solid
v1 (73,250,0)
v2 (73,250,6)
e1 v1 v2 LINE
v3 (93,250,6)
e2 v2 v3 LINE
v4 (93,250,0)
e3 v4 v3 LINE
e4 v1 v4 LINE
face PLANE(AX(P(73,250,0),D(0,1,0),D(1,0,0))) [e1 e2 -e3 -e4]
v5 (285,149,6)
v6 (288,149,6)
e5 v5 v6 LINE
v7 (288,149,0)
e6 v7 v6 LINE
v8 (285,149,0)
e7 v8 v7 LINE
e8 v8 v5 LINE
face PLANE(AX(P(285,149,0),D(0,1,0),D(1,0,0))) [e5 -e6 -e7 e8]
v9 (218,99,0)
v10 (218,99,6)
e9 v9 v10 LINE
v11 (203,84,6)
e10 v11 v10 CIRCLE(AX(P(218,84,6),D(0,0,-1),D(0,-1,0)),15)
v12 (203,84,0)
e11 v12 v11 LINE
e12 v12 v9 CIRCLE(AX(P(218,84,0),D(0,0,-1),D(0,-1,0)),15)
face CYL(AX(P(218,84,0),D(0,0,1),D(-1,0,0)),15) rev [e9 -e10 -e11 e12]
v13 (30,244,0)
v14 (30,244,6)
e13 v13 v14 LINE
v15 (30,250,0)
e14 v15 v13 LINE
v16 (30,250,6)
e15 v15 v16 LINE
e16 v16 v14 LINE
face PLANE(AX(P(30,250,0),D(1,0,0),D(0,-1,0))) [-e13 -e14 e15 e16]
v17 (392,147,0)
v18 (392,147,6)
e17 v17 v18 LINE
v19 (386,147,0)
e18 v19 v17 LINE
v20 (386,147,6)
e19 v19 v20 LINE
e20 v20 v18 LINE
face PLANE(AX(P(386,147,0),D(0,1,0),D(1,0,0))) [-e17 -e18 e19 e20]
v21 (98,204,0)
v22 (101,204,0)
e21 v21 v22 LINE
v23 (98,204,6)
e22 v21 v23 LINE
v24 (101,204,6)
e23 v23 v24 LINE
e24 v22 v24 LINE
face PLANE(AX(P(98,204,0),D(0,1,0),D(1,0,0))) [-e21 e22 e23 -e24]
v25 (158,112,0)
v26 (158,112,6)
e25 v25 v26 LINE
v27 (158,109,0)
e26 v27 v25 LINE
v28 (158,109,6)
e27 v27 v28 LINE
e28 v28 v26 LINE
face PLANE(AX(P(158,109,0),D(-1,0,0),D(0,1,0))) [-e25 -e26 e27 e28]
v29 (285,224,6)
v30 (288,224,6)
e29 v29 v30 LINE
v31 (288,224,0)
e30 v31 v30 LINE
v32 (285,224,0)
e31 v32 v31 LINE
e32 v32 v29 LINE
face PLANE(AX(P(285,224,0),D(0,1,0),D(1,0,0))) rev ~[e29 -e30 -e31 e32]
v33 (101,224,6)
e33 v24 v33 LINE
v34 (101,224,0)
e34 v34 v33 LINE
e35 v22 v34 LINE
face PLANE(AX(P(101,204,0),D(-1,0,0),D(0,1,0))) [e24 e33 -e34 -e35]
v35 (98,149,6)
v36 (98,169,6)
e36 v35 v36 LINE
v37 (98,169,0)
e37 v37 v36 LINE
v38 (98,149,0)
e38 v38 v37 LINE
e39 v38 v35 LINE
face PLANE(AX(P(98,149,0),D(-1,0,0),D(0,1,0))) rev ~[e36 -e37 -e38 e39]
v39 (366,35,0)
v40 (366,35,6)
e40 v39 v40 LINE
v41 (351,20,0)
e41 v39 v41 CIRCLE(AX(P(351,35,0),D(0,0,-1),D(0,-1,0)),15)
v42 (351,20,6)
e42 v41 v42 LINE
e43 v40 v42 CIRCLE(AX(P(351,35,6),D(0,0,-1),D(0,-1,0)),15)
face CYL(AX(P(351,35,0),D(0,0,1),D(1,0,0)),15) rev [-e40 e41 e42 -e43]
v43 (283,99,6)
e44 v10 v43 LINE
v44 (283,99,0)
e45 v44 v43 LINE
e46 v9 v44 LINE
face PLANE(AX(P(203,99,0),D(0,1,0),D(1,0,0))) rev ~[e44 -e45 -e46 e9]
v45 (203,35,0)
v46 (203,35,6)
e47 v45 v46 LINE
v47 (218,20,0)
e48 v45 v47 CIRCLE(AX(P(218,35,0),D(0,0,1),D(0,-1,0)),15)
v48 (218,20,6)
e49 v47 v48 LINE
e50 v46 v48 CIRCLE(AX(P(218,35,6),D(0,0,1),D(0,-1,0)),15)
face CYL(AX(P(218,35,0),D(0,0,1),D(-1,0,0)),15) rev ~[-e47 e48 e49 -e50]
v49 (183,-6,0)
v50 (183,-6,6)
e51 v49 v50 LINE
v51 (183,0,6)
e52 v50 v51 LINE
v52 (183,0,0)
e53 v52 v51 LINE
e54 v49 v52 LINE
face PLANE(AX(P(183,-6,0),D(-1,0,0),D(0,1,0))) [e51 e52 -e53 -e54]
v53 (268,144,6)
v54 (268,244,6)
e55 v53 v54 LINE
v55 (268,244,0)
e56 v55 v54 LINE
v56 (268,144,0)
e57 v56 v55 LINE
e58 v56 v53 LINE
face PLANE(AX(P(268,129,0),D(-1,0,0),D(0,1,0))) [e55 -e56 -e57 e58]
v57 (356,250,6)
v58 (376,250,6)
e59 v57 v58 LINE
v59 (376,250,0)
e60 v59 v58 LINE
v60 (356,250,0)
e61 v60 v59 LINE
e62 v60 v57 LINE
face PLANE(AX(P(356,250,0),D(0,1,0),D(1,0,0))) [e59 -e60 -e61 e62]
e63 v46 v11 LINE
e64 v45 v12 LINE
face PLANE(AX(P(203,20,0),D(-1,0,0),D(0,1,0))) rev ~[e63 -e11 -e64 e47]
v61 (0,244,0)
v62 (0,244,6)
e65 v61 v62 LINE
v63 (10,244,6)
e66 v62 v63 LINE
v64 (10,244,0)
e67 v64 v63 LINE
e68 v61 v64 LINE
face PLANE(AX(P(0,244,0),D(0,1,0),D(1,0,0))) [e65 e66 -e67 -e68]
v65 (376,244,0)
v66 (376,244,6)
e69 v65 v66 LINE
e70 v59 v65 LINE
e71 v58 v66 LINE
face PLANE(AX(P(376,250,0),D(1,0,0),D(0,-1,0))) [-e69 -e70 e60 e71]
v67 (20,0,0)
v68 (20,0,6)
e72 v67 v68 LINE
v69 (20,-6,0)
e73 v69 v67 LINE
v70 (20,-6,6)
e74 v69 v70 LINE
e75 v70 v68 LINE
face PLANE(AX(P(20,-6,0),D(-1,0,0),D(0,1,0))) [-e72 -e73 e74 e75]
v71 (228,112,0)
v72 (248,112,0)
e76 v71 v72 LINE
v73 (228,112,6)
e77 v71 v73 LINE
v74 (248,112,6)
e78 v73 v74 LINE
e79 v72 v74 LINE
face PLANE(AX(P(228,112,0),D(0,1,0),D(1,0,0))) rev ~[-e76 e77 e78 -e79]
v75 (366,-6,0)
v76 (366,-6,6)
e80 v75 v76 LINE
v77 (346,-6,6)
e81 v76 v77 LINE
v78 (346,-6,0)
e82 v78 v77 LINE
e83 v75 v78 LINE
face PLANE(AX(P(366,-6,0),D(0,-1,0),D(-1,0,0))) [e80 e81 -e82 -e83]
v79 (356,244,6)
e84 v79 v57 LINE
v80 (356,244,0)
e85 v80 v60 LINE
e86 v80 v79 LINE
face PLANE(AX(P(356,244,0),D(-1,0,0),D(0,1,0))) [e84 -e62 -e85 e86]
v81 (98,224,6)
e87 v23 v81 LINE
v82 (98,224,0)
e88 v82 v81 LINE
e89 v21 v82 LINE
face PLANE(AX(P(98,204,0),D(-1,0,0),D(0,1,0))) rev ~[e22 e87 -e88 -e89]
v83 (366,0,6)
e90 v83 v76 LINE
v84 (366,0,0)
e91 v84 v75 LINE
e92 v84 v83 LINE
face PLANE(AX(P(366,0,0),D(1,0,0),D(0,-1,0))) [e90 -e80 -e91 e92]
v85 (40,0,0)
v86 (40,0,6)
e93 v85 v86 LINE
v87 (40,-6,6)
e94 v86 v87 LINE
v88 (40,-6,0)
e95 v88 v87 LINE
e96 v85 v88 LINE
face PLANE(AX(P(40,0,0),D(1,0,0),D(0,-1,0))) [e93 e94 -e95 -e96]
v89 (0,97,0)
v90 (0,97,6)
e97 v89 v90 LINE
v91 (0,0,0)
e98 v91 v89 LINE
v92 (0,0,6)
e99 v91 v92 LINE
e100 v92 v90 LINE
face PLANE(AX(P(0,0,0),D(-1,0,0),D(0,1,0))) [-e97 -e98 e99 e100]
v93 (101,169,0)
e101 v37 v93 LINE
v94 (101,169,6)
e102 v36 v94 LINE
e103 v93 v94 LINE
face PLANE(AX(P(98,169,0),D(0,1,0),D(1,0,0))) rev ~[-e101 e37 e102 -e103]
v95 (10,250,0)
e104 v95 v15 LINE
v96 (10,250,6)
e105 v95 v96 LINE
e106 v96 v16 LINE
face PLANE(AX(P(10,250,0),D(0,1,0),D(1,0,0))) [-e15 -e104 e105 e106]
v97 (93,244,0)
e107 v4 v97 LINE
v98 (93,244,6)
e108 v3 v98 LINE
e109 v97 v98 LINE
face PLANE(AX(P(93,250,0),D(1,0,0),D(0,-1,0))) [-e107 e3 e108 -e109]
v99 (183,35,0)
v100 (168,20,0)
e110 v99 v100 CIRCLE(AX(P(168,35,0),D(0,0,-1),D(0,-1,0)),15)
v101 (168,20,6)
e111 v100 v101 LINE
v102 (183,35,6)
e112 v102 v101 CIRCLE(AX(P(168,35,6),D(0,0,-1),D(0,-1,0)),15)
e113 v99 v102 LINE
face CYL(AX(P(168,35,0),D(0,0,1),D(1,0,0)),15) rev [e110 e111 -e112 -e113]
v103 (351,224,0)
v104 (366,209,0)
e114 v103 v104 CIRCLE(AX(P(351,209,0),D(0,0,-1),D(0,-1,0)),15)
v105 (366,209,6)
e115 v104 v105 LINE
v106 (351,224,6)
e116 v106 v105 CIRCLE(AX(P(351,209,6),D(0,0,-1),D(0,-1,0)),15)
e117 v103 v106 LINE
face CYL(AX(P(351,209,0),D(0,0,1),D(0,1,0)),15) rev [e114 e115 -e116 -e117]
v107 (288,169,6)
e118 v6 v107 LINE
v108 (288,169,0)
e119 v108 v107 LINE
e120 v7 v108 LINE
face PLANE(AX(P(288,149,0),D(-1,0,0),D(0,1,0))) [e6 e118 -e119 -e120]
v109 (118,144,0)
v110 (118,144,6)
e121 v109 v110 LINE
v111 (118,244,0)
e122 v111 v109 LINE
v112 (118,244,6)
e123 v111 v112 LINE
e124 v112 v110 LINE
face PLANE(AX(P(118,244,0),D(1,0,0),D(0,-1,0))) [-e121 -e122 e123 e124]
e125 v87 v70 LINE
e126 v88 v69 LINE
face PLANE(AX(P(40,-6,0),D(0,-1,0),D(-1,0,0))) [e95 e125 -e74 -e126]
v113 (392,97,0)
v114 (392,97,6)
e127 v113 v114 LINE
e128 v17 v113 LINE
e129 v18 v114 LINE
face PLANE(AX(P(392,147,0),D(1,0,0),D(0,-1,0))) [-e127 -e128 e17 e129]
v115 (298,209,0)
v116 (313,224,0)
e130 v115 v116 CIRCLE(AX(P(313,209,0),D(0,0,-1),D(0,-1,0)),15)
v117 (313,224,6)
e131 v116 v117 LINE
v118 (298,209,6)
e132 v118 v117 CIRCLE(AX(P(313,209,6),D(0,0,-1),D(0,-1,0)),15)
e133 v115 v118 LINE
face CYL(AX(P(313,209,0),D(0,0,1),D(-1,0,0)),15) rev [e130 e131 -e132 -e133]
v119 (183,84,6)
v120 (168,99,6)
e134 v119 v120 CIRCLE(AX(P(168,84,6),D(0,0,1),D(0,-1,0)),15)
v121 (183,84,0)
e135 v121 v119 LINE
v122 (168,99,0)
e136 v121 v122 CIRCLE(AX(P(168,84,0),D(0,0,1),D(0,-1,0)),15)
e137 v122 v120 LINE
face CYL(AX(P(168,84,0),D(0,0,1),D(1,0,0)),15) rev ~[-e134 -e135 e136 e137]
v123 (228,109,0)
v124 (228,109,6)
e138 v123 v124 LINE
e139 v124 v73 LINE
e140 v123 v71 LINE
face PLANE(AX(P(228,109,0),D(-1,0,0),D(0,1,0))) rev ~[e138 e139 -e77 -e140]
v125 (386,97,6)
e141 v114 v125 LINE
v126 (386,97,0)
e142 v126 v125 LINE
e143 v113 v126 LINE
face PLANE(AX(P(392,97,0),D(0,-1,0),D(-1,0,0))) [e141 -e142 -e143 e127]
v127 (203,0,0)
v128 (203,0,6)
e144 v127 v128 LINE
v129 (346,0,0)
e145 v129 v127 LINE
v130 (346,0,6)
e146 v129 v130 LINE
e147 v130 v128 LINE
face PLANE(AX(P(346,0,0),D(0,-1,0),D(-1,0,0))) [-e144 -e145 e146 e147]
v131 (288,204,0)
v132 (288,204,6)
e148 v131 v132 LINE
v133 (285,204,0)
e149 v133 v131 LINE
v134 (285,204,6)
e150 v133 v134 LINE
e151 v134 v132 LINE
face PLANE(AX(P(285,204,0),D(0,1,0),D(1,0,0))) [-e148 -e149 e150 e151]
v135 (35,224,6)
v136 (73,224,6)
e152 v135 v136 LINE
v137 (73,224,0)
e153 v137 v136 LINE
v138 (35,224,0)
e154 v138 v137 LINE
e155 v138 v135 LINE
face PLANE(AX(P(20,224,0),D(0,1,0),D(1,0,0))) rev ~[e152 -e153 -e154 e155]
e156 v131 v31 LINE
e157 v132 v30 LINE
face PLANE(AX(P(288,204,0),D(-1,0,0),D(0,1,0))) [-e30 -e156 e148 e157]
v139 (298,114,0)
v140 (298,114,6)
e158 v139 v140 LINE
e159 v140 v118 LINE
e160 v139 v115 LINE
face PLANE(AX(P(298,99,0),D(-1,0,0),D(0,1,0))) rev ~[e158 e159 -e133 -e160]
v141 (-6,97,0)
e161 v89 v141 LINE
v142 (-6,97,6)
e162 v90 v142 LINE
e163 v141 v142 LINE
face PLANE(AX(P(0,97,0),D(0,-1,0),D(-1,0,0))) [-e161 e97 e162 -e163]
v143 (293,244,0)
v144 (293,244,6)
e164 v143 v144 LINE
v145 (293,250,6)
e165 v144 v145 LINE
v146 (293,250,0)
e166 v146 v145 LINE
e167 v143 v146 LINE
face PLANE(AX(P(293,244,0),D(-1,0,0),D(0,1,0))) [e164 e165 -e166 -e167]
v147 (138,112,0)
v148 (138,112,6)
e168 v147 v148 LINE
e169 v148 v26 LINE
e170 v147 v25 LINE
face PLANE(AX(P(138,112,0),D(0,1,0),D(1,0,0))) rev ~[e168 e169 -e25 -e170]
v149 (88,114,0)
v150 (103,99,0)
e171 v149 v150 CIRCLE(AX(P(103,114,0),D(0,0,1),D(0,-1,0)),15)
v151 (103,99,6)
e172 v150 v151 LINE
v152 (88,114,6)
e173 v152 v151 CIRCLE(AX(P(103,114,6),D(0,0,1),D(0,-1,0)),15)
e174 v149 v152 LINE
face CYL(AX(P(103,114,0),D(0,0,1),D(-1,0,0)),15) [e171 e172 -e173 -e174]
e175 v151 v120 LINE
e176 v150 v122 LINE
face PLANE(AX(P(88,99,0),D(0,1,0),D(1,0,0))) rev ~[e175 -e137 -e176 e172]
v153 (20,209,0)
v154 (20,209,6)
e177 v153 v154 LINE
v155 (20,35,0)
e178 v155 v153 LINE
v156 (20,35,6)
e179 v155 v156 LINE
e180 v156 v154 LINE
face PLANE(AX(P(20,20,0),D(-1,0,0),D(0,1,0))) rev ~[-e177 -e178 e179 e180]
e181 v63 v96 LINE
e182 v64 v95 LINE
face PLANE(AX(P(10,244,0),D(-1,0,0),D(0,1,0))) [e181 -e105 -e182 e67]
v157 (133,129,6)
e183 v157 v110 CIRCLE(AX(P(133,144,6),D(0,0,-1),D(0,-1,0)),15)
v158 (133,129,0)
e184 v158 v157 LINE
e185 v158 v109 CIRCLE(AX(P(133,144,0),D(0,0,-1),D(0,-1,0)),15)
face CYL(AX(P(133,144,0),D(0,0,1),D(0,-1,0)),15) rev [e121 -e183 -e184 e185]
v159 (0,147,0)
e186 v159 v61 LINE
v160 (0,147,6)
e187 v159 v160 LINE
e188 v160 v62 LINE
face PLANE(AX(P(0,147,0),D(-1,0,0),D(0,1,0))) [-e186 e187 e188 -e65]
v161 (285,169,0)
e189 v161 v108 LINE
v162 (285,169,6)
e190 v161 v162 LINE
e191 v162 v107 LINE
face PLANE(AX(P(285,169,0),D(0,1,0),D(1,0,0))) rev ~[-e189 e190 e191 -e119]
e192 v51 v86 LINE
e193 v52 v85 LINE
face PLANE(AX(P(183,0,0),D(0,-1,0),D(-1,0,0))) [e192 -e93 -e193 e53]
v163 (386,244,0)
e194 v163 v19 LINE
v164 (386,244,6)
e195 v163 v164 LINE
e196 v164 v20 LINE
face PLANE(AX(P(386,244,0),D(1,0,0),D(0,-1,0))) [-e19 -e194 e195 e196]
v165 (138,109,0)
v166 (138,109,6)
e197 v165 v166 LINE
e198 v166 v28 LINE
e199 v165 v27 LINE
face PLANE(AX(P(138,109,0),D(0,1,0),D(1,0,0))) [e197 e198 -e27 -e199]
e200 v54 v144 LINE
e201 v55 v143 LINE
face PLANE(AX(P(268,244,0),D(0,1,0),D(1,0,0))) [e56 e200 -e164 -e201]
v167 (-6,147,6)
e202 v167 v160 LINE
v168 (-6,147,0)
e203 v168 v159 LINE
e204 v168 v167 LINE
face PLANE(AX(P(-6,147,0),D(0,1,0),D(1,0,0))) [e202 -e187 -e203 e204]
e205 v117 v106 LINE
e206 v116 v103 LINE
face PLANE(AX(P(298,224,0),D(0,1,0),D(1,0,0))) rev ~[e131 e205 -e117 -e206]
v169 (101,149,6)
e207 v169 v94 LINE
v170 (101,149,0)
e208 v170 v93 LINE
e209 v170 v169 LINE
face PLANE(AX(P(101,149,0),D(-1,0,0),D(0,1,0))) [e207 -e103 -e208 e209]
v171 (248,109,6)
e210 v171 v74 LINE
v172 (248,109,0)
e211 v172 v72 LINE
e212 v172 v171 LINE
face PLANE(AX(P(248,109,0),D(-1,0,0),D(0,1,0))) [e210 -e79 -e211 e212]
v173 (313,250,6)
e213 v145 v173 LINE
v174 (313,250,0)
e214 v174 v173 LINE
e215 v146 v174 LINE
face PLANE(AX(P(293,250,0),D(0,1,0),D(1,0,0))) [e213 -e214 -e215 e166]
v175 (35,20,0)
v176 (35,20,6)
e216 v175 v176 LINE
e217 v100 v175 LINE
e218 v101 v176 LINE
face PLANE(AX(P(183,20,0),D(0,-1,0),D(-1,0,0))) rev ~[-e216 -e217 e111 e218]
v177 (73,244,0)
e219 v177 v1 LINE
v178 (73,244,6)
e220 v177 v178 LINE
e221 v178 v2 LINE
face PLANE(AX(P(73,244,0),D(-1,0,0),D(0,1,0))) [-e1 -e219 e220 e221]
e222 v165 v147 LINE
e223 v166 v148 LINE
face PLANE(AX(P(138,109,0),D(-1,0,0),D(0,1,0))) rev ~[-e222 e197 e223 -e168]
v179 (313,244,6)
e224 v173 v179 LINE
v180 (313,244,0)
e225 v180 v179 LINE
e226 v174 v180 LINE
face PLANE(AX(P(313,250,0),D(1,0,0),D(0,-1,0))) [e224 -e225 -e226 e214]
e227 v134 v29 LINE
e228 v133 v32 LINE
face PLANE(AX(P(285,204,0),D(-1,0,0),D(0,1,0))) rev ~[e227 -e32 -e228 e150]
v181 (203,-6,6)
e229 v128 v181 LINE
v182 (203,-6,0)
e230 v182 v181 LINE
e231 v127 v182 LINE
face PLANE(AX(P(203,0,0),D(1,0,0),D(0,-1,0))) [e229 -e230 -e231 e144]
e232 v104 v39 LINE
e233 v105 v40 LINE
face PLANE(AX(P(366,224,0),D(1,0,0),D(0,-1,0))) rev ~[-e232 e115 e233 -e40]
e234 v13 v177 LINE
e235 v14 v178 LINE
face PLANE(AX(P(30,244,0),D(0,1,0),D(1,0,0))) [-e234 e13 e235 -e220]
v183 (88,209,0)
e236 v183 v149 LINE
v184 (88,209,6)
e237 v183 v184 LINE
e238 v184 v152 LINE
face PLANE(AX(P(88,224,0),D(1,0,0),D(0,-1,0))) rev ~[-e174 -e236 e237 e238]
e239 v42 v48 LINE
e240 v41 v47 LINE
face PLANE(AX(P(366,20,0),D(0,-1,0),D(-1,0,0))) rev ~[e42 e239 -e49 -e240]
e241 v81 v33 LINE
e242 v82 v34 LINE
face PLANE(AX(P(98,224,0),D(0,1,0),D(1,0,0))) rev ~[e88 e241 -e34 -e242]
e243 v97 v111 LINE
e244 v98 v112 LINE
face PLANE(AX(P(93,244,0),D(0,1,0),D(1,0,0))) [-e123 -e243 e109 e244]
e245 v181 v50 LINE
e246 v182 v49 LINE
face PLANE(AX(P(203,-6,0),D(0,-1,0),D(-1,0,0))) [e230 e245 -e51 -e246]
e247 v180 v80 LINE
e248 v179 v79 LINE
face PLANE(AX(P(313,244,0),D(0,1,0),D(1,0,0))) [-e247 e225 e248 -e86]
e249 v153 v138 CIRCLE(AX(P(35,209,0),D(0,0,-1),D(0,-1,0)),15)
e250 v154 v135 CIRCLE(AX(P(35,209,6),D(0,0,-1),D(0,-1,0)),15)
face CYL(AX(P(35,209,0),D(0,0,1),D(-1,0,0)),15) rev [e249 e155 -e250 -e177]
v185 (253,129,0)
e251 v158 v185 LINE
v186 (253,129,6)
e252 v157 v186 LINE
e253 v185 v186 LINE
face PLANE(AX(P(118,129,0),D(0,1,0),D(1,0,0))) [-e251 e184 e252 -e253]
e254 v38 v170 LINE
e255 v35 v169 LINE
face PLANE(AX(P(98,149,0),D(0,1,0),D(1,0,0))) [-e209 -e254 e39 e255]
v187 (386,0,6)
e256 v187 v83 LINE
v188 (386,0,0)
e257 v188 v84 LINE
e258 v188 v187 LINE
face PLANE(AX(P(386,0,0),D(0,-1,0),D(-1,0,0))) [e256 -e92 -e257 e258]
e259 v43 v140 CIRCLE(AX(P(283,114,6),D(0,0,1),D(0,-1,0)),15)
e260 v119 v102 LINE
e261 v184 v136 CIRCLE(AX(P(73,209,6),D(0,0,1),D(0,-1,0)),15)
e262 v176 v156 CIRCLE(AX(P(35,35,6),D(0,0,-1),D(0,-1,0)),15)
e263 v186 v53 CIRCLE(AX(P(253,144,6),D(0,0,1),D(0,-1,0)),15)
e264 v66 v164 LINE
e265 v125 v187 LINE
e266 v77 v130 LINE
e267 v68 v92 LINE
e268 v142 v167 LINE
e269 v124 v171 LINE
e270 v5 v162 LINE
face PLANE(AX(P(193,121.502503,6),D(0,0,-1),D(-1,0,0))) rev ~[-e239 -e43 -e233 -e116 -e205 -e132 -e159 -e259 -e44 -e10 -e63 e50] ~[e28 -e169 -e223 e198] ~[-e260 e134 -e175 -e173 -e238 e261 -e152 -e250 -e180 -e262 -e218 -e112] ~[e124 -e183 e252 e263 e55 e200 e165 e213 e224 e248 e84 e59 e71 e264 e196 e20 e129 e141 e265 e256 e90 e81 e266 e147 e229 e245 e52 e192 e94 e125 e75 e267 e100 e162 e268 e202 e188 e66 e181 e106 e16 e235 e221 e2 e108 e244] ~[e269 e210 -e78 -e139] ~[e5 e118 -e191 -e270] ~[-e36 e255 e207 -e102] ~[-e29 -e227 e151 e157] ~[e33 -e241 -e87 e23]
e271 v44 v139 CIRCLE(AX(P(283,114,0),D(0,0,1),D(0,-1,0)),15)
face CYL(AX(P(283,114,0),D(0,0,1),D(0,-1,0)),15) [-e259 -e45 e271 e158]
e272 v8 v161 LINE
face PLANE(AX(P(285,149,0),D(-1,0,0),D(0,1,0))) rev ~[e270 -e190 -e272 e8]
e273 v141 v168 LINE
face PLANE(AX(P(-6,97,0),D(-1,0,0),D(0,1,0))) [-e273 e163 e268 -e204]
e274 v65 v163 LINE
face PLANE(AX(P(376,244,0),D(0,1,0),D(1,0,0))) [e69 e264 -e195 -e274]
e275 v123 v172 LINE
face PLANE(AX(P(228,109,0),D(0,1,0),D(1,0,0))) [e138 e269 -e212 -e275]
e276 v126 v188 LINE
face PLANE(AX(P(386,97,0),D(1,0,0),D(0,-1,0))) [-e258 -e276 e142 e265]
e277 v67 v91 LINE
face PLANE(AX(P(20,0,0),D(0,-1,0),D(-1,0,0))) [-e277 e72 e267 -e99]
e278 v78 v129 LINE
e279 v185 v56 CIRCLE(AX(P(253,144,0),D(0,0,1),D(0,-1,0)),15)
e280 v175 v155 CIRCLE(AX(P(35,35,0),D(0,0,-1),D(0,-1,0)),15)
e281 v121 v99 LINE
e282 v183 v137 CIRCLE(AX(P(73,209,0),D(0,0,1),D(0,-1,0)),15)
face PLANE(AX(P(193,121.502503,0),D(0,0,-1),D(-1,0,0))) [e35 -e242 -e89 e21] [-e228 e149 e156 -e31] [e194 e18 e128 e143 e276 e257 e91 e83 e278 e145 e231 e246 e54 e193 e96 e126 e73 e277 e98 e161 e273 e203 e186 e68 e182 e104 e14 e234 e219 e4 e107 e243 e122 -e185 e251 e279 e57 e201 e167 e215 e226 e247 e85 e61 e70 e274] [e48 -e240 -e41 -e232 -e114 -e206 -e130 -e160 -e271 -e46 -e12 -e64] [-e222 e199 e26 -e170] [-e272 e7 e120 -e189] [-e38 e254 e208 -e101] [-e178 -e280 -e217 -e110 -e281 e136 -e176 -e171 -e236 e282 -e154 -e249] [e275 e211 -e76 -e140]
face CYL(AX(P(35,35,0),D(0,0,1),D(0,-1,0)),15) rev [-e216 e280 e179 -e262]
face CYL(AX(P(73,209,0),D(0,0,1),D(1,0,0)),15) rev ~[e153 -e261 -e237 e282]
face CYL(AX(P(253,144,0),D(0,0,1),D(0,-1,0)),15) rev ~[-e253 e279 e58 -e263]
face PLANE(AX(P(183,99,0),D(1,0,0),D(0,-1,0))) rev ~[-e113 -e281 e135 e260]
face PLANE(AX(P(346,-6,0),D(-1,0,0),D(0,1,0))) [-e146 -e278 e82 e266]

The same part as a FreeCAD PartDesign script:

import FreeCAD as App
import Part
import Sketcher

V = App.Vector


def edges_at(feature, points):
    """Names of the edges that pass closest to the given points."""
    edges = feature.Shape.Edges
    near = lambda p: min(range(len(edges)), key=lambda i: edges[i].distToShape(Part.Vertex(*p))[0])
    return sorted({f"Edge{near(p) + 1}" for p in points})

doc = App.newDocument("Part")
body = doc.addObject("PartDesign::Body", "Body")

sketch1 = doc.addObject("Sketcher::SketchObject", "Sketch")
body.addObject(sketch1)
sketch1.AttachmentSupport = (doc.XY_Plane, [""])
sketch1.MapMode = "FlatFace"
sketch1.addGeometry(Part.LineSegment(V(118, 129, 0), V(118, 244, 0)), False)
sketch1.addGeometry(Part.LineSegment(V(118, 244, 0), V(93, 244, 0)), False)
sketch1.addGeometry(Part.LineSegment(V(93, 244, 0), V(93, 250, 0)), False)
sketch1.addGeometry(Part.LineSegment(V(93, 250, 0), V(73, 250, 0)), False)
sketch1.addGeometry(Part.LineSegment(V(73, 250, 0), V(73, 244, 0)), False)
sketch1.addGeometry(Part.LineSegment(V(73, 244, 0), V(30, 244, 0)), False)
sketch1.addGeometry(Part.LineSegment(V(30, 244, 0), V(30, 250, 0)), False)
sketch1.addGeometry(Part.LineSegment(V(30, 250, 0), V(10, 250, 0)), False)
sketch1.addGeometry(Part.LineSegment(V(10, 250, 0), V(10, 244, 0)), False)
sketch1.addGeometry(Part.LineSegment(V(10, 244, 0), V(0, 244, 0)), False)
sketch1.addGeometry(Part.LineSegment(V(0, 244, 0), V(0, 147, 0)), False)
sketch1.addGeometry(Part.LineSegment(V(0, 147, 0), V(-6, 147, 0)), False)
sketch1.addGeometry(Part.LineSegment(V(-6, 147, 0), V(-6, 97, 0)), False)
sketch1.addGeometry(Part.LineSegment(V(-6, 97, 0), V(0, 97, 0)), False)
sketch1.addGeometry(Part.LineSegment(V(0, 97, 0), V(0, 0, 0)), False)
sketch1.addGeometry(Part.LineSegment(V(0, 0, 0), V(20, 0, 0)), False)
sketch1.addGeometry(Part.LineSegment(V(20, 0, 0), V(20, -6, 0)), False)
sketch1.addGeometry(Part.LineSegment(V(20, -6, 0), V(40, -6, 0)), False)
sketch1.addGeometry(Part.LineSegment(V(40, -6, 0), V(40, 0, 0)), False)
sketch1.addGeometry(Part.LineSegment(V(40, 0, 0), V(183, 0, 0)), False)
sketch1.addGeometry(Part.LineSegment(V(183, 0, 0), V(183, -6, 0)), False)
sketch1.addGeometry(Part.LineSegment(V(183, -6, 0), V(203, -6, 0)), False)
sketch1.addGeometry(Part.LineSegment(V(203, -6, 0), V(203, 0, 0)), False)
sketch1.addGeometry(Part.LineSegment(V(203, 0, 0), V(346, 0, 0)), False)
sketch1.addGeometry(Part.LineSegment(V(346, 0, 0), V(346, -6, 0)), False)
sketch1.addGeometry(Part.LineSegment(V(346, -6, 0), V(366, -6, 0)), False)
sketch1.addGeometry(Part.LineSegment(V(366, -6, 0), V(366, 0, 0)), False)
sketch1.addGeometry(Part.LineSegment(V(366, 0, 0), V(386, 0, 0)), False)
sketch1.addGeometry(Part.LineSegment(V(386, 0, 0), V(386, 97, 0)), False)
sketch1.addGeometry(Part.LineSegment(V(386, 97, 0), V(392, 97, 0)), False)
sketch1.addGeometry(Part.LineSegment(V(392, 97, 0), V(392, 147, 0)), False)
sketch1.addGeometry(Part.LineSegment(V(392, 147, 0), V(386, 147, 0)), False)
sketch1.addGeometry(Part.LineSegment(V(386, 147, 0), V(386, 244, 0)), False)
sketch1.addGeometry(Part.LineSegment(V(386, 244, 0), V(376, 244, 0)), False)
sketch1.addGeometry(Part.LineSegment(V(376, 244, 0), V(376, 250, 0)), False)
sketch1.addGeometry(Part.LineSegment(V(376, 250, 0), V(356, 250, 0)), False)
sketch1.addGeometry(Part.LineSegment(V(356, 250, 0), V(356, 244, 0)), False)
sketch1.addGeometry(Part.LineSegment(V(356, 244, 0), V(313, 244, 0)), False)
sketch1.addGeometry(Part.LineSegment(V(313, 244, 0), V(313, 250, 0)), False)
sketch1.addGeometry(Part.LineSegment(V(313, 250, 0), V(293, 250, 0)), False)
sketch1.addGeometry(Part.LineSegment(V(293, 250, 0), V(293, 244, 0)), False)
sketch1.addGeometry(Part.LineSegment(V(293, 244, 0), V(268, 244, 0)), False)
sketch1.addGeometry(Part.LineSegment(V(268, 244, 0), V(268, 129, 0)), False)
sketch1.addGeometry(Part.LineSegment(V(268, 129, 0), V(118, 129, 0)), False)
sketch1.addGeometry(Part.LineSegment(V(228, 109, 0), V(228, 112, 0)), False)
sketch1.addGeometry(Part.LineSegment(V(228, 112, 0), V(248, 112, 0)), False)
sketch1.addGeometry(Part.LineSegment(V(248, 112, 0), V(248, 109, 0)), False)
sketch1.addGeometry(Part.LineSegment(V(248, 109, 0), V(228, 109, 0)), False)
sketch1.addGeometry(Part.LineSegment(V(138, 109, 0), V(138, 112, 0)), False)
sketch1.addGeometry(Part.LineSegment(V(138, 112, 0), V(158, 112, 0)), False)
sketch1.addGeometry(Part.LineSegment(V(158, 112, 0), V(158, 109, 0)), False)
sketch1.addGeometry(Part.LineSegment(V(158, 109, 0), V(138, 109, 0)), False)
sketch1.addGeometry(Part.LineSegment(V(298, 99, 0), V(298, 224, 0)), False)
sketch1.addGeometry(Part.LineSegment(V(298, 224, 0), V(366, 224, 0)), False)
sketch1.addGeometry(Part.LineSegment(V(366, 224, 0), V(366, 20, 0)), False)
sketch1.addGeometry(Part.LineSegment(V(366, 20, 0), V(203, 20, 0)), False)
sketch1.addGeometry(Part.LineSegment(V(203, 20, 0), V(203, 99, 0)), False)
sketch1.addGeometry(Part.LineSegment(V(203, 99, 0), V(298, 99, 0)), False)
sketch1.addGeometry(Part.LineSegment(V(285, 149, 0), V(285, 169, 0)), False)
sketch1.addGeometry(Part.LineSegment(V(285, 169, 0), V(288, 169, 0)), False)
sketch1.addGeometry(Part.LineSegment(V(288, 169, 0), V(288, 149, 0)), False)
sketch1.addGeometry(Part.LineSegment(V(288, 149, 0), V(285, 149, 0)), False)
sketch1.addGeometry(Part.LineSegment(V(285, 204, 0), V(285, 224, 0)), False)
sketch1.addGeometry(Part.LineSegment(V(285, 224, 0), V(288, 224, 0)), False)
sketch1.addGeometry(Part.LineSegment(V(288, 224, 0), V(288, 204, 0)), False)
sketch1.addGeometry(Part.LineSegment(V(288, 204, 0), V(285, 204, 0)), False)
sketch1.addGeometry(Part.LineSegment(V(20, 20, 0), V(20, 224, 0)), False)
sketch1.addGeometry(Part.LineSegment(V(20, 224, 0), V(88, 224, 0)), False)
sketch1.addGeometry(Part.LineSegment(V(88, 224, 0), V(88, 99, 0)), False)
sketch1.addGeometry(Part.LineSegment(V(88, 99, 0), V(183, 99, 0)), False)
sketch1.addGeometry(Part.LineSegment(V(183, 99, 0), V(183, 20, 0)), False)
sketch1.addGeometry(Part.LineSegment(V(183, 20, 0), V(20, 20, 0)), False)
sketch1.addGeometry(Part.LineSegment(V(98, 149, 0), V(98, 169, 0)), False)
sketch1.addGeometry(Part.LineSegment(V(98, 169, 0), V(101, 169, 0)), False)
sketch1.addGeometry(Part.LineSegment(V(101, 169, 0), V(101, 149, 0)), False)
sketch1.addGeometry(Part.LineSegment(V(101, 149, 0), V(98, 149, 0)), False)
sketch1.addGeometry(Part.LineSegment(V(98, 204, 0), V(98, 224, 0)), False)
sketch1.addGeometry(Part.LineSegment(V(98, 224, 0), V(101, 224, 0)), False)
sketch1.addGeometry(Part.LineSegment(V(101, 224, 0), V(101, 204, 0)), False)
sketch1.addGeometry(Part.LineSegment(V(101, 204, 0), V(98, 204, 0)), False)
sketch1.addConstraint(Sketcher.Constraint("Coincident", 0, 2, 1, 1))
sketch1.addConstraint(Sketcher.Constraint("Coincident", 1, 2, 2, 1))
sketch1.addConstraint(Sketcher.Constraint("Coincident", 2, 2, 3, 1))
sketch1.addConstraint(Sketcher.Constraint("Coincident", 3, 2, 4, 1))
sketch1.addConstraint(Sketcher.Constraint("Coincident", 4, 2, 5, 1))
sketch1.addConstraint(Sketcher.Constraint("Coincident", 5, 2, 6, 1))
sketch1.addConstraint(Sketcher.Constraint("Coincident", 6, 2, 7, 1))
sketch1.addConstraint(Sketcher.Constraint("Coincident", 7, 2, 8, 1))
sketch1.addConstraint(Sketcher.Constraint("Coincident", 8, 2, 9, 1))
sketch1.addConstraint(Sketcher.Constraint("Coincident", 9, 2, 10, 1))
sketch1.addConstraint(Sketcher.Constraint("Coincident", 10, 2, 11, 1))
sketch1.addConstraint(Sketcher.Constraint("Coincident", 11, 2, 12, 1))
sketch1.addConstraint(Sketcher.Constraint("Coincident", 12, 2, 13, 1))
sketch1.addConstraint(Sketcher.Constraint("Coincident", 13, 2, 14, 1))
sketch1.addConstraint(Sketcher.Constraint("Coincident", 14, 2, 15, 1))
sketch1.addConstraint(Sketcher.Constraint("Coincident", 15, 2, 16, 1))
sketch1.addConstraint(Sketcher.Constraint("Coincident", 16, 2, 17, 1))
sketch1.addConstraint(Sketcher.Constraint("Coincident", 17, 2, 18, 1))
sketch1.addConstraint(Sketcher.Constraint("Coincident", 18, 2, 19, 1))
sketch1.addConstraint(Sketcher.Constraint("Coincident", 19, 2, 20, 1))
sketch1.addConstraint(Sketcher.Constraint("Coincident", 20, 2, 21, 1))
sketch1.addConstraint(Sketcher.Constraint("Coincident", 21, 2, 22, 1))
sketch1.addConstraint(Sketcher.Constraint("Coincident", 22, 2, 23, 1))
sketch1.addConstraint(Sketcher.Constraint("Coincident", 23, 2, 24, 1))
sketch1.addConstraint(Sketcher.Constraint("Coincident", 24, 2, 25, 1))
sketch1.addConstraint(Sketcher.Constraint("Coincident", 25, 2, 26, 1))
sketch1.addConstraint(Sketcher.Constraint("Coincident", 26, 2, 27, 1))
sketch1.addConstraint(Sketcher.Constraint("Coincident", 27, 2, 28, 1))
sketch1.addConstraint(Sketcher.Constraint("Coincident", 28, 2, 29, 1))
sketch1.addConstraint(Sketcher.Constraint("Coincident", 29, 2, 30, 1))
sketch1.addConstraint(Sketcher.Constraint("Coincident", 30, 2, 31, 1))
sketch1.addConstraint(Sketcher.Constraint("Coincident", 31, 2, 32, 1))
sketch1.addConstraint(Sketcher.Constraint("Coincident", 32, 2, 33, 1))
sketch1.addConstraint(Sketcher.Constraint("Coincident", 33, 2, 34, 1))
sketch1.addConstraint(Sketcher.Constraint("Coincident", 34, 2, 35, 1))
sketch1.addConstraint(Sketcher.Constraint("Coincident", 35, 2, 36, 1))
sketch1.addConstraint(Sketcher.Constraint("Coincident", 36, 2, 37, 1))
sketch1.addConstraint(Sketcher.Constraint("Coincident", 37, 2, 38, 1))
sketch1.addConstraint(Sketcher.Constraint("Coincident", 38, 2, 39, 1))
sketch1.addConstraint(Sketcher.Constraint("Coincident", 39, 2, 40, 1))
sketch1.addConstraint(Sketcher.Constraint("Coincident", 40, 2, 41, 1))
sketch1.addConstraint(Sketcher.Constraint("Coincident", 41, 2, 42, 1))
sketch1.addConstraint(Sketcher.Constraint("Coincident", 42, 2, 43, 1))
sketch1.addConstraint(Sketcher.Constraint("Coincident", 43, 2, 0, 1))
sketch1.addConstraint(Sketcher.Constraint("Coincident", 44, 2, 45, 1))
sketch1.addConstraint(Sketcher.Constraint("Coincident", 45, 2, 46, 1))
sketch1.addConstraint(Sketcher.Constraint("Coincident", 46, 2, 47, 1))
sketch1.addConstraint(Sketcher.Constraint("Coincident", 47, 2, 44, 1))
sketch1.addConstraint(Sketcher.Constraint("Coincident", 48, 2, 49, 1))
sketch1.addConstraint(Sketcher.Constraint("Coincident", 49, 2, 50, 1))
sketch1.addConstraint(Sketcher.Constraint("Coincident", 50, 2, 51, 1))
sketch1.addConstraint(Sketcher.Constraint("Coincident", 51, 2, 48, 1))
sketch1.addConstraint(Sketcher.Constraint("Coincident", 52, 2, 53, 1))
sketch1.addConstraint(Sketcher.Constraint("Coincident", 53, 2, 54, 1))
sketch1.addConstraint(Sketcher.Constraint("Coincident", 54, 2, 55, 1))
sketch1.addConstraint(Sketcher.Constraint("Coincident", 55, 2, 56, 1))
sketch1.addConstraint(Sketcher.Constraint("Coincident", 56, 2, 57, 1))
sketch1.addConstraint(Sketcher.Constraint("Coincident", 57, 2, 52, 1))
sketch1.addConstraint(Sketcher.Constraint("Coincident", 58, 2, 59, 1))
sketch1.addConstraint(Sketcher.Constraint("Coincident", 59, 2, 60, 1))
sketch1.addConstraint(Sketcher.Constraint("Coincident", 60, 2, 61, 1))
sketch1.addConstraint(Sketcher.Constraint("Coincident", 61, 2, 58, 1))
sketch1.addConstraint(Sketcher.Constraint("Coincident", 62, 2, 63, 1))
sketch1.addConstraint(Sketcher.Constraint("Coincident", 63, 2, 64, 1))
sketch1.addConstraint(Sketcher.Constraint("Coincident", 64, 2, 65, 1))
sketch1.addConstraint(Sketcher.Constraint("Coincident", 65, 2, 62, 1))
sketch1.addConstraint(Sketcher.Constraint("Coincident", 66, 2, 67, 1))
sketch1.addConstraint(Sketcher.Constraint("Coincident", 67, 2, 68, 1))
sketch1.addConstraint(Sketcher.Constraint("Coincident", 68, 2, 69, 1))
sketch1.addConstraint(Sketcher.Constraint("Coincident", 69, 2, 70, 1))
sketch1.addConstraint(Sketcher.Constraint("Coincident", 70, 2, 71, 1))
sketch1.addConstraint(Sketcher.Constraint("Coincident", 71, 2, 66, 1))
sketch1.addConstraint(Sketcher.Constraint("Coincident", 72, 2, 73, 1))
sketch1.addConstraint(Sketcher.Constraint("Coincident", 73, 2, 74, 1))
sketch1.addConstraint(Sketcher.Constraint("Coincident", 74, 2, 75, 1))
sketch1.addConstraint(Sketcher.Constraint("Coincident", 75, 2, 72, 1))
sketch1.addConstraint(Sketcher.Constraint("Coincident", 76, 2, 77, 1))
sketch1.addConstraint(Sketcher.Constraint("Coincident", 77, 2, 78, 1))
sketch1.addConstraint(Sketcher.Constraint("Coincident", 78, 2, 79, 1))
sketch1.addConstraint(Sketcher.Constraint("Coincident", 79, 2, 76, 1))
sketch1.addConstraint(Sketcher.Constraint("Vertical", 0))
sketch1.addConstraint(Sketcher.Constraint("Horizontal", 1))
sketch1.addConstraint(Sketcher.Constraint("Vertical", 2))
sketch1.addConstraint(Sketcher.Constraint("Horizontal", 3))
sketch1.addConstraint(Sketcher.Constraint("Vertical", 4))
sketch1.addConstraint(Sketcher.Constraint("Horizontal", 5))
sketch1.addConstraint(Sketcher.Constraint("Vertical", 6))
sketch1.addConstraint(Sketcher.Constraint("Horizontal", 7))
sketch1.addConstraint(Sketcher.Constraint("Vertical", 8))
sketch1.addConstraint(Sketcher.Constraint("Horizontal", 9))
sketch1.addConstraint(Sketcher.Constraint("Vertical", 10))
sketch1.addConstraint(Sketcher.Constraint("Horizontal", 11))
sketch1.addConstraint(Sketcher.Constraint("Vertical", 12))
sketch1.addConstraint(Sketcher.Constraint("Horizontal", 13))
sketch1.addConstraint(Sketcher.Constraint("Vertical", 14))
sketch1.addConstraint(Sketcher.Constraint("Horizontal", 15))
sketch1.addConstraint(Sketcher.Constraint("Vertical", 16))
sketch1.addConstraint(Sketcher.Constraint("Horizontal", 17))
sketch1.addConstraint(Sketcher.Constraint("Vertical", 18))
sketch1.addConstraint(Sketcher.Constraint("Horizontal", 19))
sketch1.addConstraint(Sketcher.Constraint("Vertical", 20))
sketch1.addConstraint(Sketcher.Constraint("Horizontal", 21))
sketch1.addConstraint(Sketcher.Constraint("Vertical", 22))
sketch1.addConstraint(Sketcher.Constraint("Horizontal", 23))
sketch1.addConstraint(Sketcher.Constraint("Vertical", 24))
sketch1.addConstraint(Sketcher.Constraint("Horizontal", 25))
sketch1.addConstraint(Sketcher.Constraint("Vertical", 26))
sketch1.addConstraint(Sketcher.Constraint("Horizontal", 27))
sketch1.addConstraint(Sketcher.Constraint("Vertical", 28))
sketch1.addConstraint(Sketcher.Constraint("Horizontal", 29))
sketch1.addConstraint(Sketcher.Constraint("Vertical", 30))
sketch1.addConstraint(Sketcher.Constraint("Horizontal", 31))
sketch1.addConstraint(Sketcher.Constraint("Vertical", 32))
sketch1.addConstraint(Sketcher.Constraint("Horizontal", 33))
sketch1.addConstraint(Sketcher.Constraint("Vertical", 34))
sketch1.addConstraint(Sketcher.Constraint("Horizontal", 35))
sketch1.addConstraint(Sketcher.Constraint("Vertical", 36))
sketch1.addConstraint(Sketcher.Constraint("Horizontal", 37))
sketch1.addConstraint(Sketcher.Constraint("Vertical", 38))
sketch1.addConstraint(Sketcher.Constraint("Horizontal", 39))
sketch1.addConstraint(Sketcher.Constraint("Vertical", 40))
sketch1.addConstraint(Sketcher.Constraint("Horizontal", 41))
sketch1.addConstraint(Sketcher.Constraint("Vertical", 42))
sketch1.addConstraint(Sketcher.Constraint("Horizontal", 43))
sketch1.addConstraint(Sketcher.Constraint("Vertical", 44))
sketch1.addConstraint(Sketcher.Constraint("Horizontal", 45))
sketch1.addConstraint(Sketcher.Constraint("Vertical", 46))
sketch1.addConstraint(Sketcher.Constraint("Horizontal", 47))
sketch1.addConstraint(Sketcher.Constraint("Vertical", 48))
sketch1.addConstraint(Sketcher.Constraint("Horizontal", 49))
sketch1.addConstraint(Sketcher.Constraint("Vertical", 50))
sketch1.addConstraint(Sketcher.Constraint("Horizontal", 51))
sketch1.addConstraint(Sketcher.Constraint("Vertical", 52))
sketch1.addConstraint(Sketcher.Constraint("Horizontal", 53))
sketch1.addConstraint(Sketcher.Constraint("Vertical", 54))
sketch1.addConstraint(Sketcher.Constraint("Horizontal", 55))
sketch1.addConstraint(Sketcher.Constraint("Vertical", 56))
sketch1.addConstraint(Sketcher.Constraint("Horizontal", 57))
sketch1.addConstraint(Sketcher.Constraint("Vertical", 58))
sketch1.addConstraint(Sketcher.Constraint("Horizontal", 59))
sketch1.addConstraint(Sketcher.Constraint("Vertical", 60))
sketch1.addConstraint(Sketcher.Constraint("Horizontal", 61))
sketch1.addConstraint(Sketcher.Constraint("Vertical", 62))
sketch1.addConstraint(Sketcher.Constraint("Horizontal", 63))
sketch1.addConstraint(Sketcher.Constraint("Vertical", 64))
sketch1.addConstraint(Sketcher.Constraint("Horizontal", 65))
sketch1.addConstraint(Sketcher.Constraint("Vertical", 66))
sketch1.addConstraint(Sketcher.Constraint("Horizontal", 67))
sketch1.addConstraint(Sketcher.Constraint("Vertical", 68))
sketch1.addConstraint(Sketcher.Constraint("Horizontal", 69))
sketch1.addConstraint(Sketcher.Constraint("Vertical", 70))
sketch1.addConstraint(Sketcher.Constraint("Horizontal", 71))
sketch1.addConstraint(Sketcher.Constraint("Vertical", 72))
sketch1.addConstraint(Sketcher.Constraint("Horizontal", 73))
sketch1.addConstraint(Sketcher.Constraint("Vertical", 74))
sketch1.addConstraint(Sketcher.Constraint("Horizontal", 75))
sketch1.addConstraint(Sketcher.Constraint("Vertical", 76))
sketch1.addConstraint(Sketcher.Constraint("Horizontal", 77))
sketch1.addConstraint(Sketcher.Constraint("Vertical", 78))
sketch1.addConstraint(Sketcher.Constraint("Horizontal", 79))
sketch1.addConstraint(Sketcher.Constraint("Coincident", 14, 2, -1, 1))
sketch1.addConstraint(Sketcher.Constraint("PointOnObject", 9, 2, -2))
sketch1.addConstraint(Sketcher.Constraint("PointOnObject", 18, 2, -1))
sketch1.addConstraint(Sketcher.Constraint("PointOnObject", 22, 2, -1))
sketch1.addConstraint(Sketcher.Constraint("PointOnObject", 26, 2, -1))
sketch1.addConstraint(Sketcher.Constraint("Horizontal", 1, 2, 4, 2))
sketch1.addConstraint(Sketcher.Constraint("Horizontal", 3, 2, 6, 2))
sketch1.addConstraint(Sketcher.Constraint("Horizontal", 5, 2, 8, 2))
sketch1.addConstraint(Sketcher.Constraint("Horizontal", 17, 2, 20, 2))
sketch1.addConstraint(Sketcher.Constraint("Horizontal", 21, 2, 24, 2))
sketch1.addConstraint(Sketcher.Constraint("Horizontal", 13, 2, 28, 2))
sketch1.addConstraint(Sketcher.Constraint("Horizontal", 11, 2, 30, 2))
sketch1.addConstraint(Sketcher.Constraint("Horizontal", 9, 2, 32, 2))
sketch1.addConstraint(Sketcher.Constraint("Horizontal", 7, 2, 34, 2))
sketch1.addConstraint(Sketcher.Constraint("Horizontal", 33, 2, 36, 2))
sketch1.addConstraint(Sketcher.Constraint("Horizontal", 35, 2, 38, 2))
sketch1.addConstraint(Sketcher.Constraint("Horizontal", 37, 2, 40, 2))
sketch1.addConstraint(Sketcher.Constraint("Horizontal", 45, 2, 48, 2))
sketch1.addConstraint(Sketcher.Constraint("Horizontal", 47, 2, 50, 2))
sketch1.addConstraint(Sketcher.Constraint("Horizontal", 53, 2, 62, 2))
sketch1.addConstraint(Sketcher.Constraint("Horizontal", 63, 2, 66, 2))
sketch1.addConstraint(Sketcher.Constraint("Horizontal", 57, 2, 68, 2))
sketch1.addConstraint(Sketcher.Constraint("Horizontal", 55, 2, 70, 2))
sketch1.addConstraint(Sketcher.Constraint("Horizontal", 59, 2, 72, 2))
sketch1.addConstraint(Sketcher.Constraint("Horizontal", 61, 2, 74, 2))
sketch1.addConstraint(Sketcher.Constraint("Horizontal", 67, 2, 76, 2))
sketch1.addConstraint(Sketcher.Constraint("Horizontal", 65, 2, 78, 2))
sketch1.addConstraint(Sketcher.Constraint("Vertical", 28, 2, 31, 2))
sketch1.addConstraint(Sketcher.Constraint("Vertical", 26, 2, 53, 2))
sketch1.addConstraint(Sketcher.Constraint("Vertical", 22, 2, 55, 2))
sketch1.addConstraint(Sketcher.Constraint("Vertical", 61, 2, 62, 2))
sketch1.addConstraint(Sketcher.Constraint("Vertical", 60, 2, 63, 2))
sketch1.addConstraint(Sketcher.Constraint("Vertical", 16, 2, 66, 2))
sketch1.addConstraint(Sketcher.Constraint("Vertical", 20, 2, 69, 2))
sketch1.addConstraint(Sketcher.Constraint("Vertical", 75, 2, 76, 2))
sketch1.addConstraint(Sketcher.Constraint("Vertical", 74, 2, 77, 2))
sketch1.addConstraint(Sketcher.Constraint("Equal", 3, 7))
sketch1.addConstraint(Sketcher.Constraint("Equal", 7, 15))
sketch1.addConstraint(Sketcher.Constraint("Equal", 15, 17))
sketch1.addConstraint(Sketcher.Constraint("Equal", 17, 21))
sketch1.addConstraint(Sketcher.Constraint("Equal", 19, 23))
sketch1.addConstraint(Sketcher.Constraint("Equal", 21, 25))
sketch1.addConstraint(Sketcher.Constraint("Equal", 25, 27))
sketch1.addConstraint(Sketcher.Constraint("Equal", 13, 29))
sketch1.addConstraint(Sketcher.Constraint("Equal", 9, 33))
sketch1.addConstraint(Sketcher.Constraint("Equal", 27, 35))
sketch1.addConstraint(Sketcher.Constraint("Equal", 5, 37))
sketch1.addConstraint(Sketcher.Constraint("Equal", 35, 39))
sketch1.addConstraint(Sketcher.Constraint("Equal", 1, 41))
sketch1.addConstraint(Sketcher.Constraint("Equal", 39, 45))
sketch1.addConstraint(Sketcher.Constraint("Equal", 47, 49))
sketch1.addConstraint(Sketcher.Constraint("Equal", 53, 67))
sketch1.addConstraint(Sketcher.Constraint("Equal", 65, 73))
sketch1.addConstraint(Sketcher.Constraint("Equal", 31, 2))
sketch1.addConstraint(Sketcher.Constraint("Equal", 10, 14))
sketch1.addConstraint(Sketcher.Constraint("Equal", 8, 16))
sketch1.addConstraint(Sketcher.Constraint("Equal", 79, 44))
sketch1.addConstraint(Sketcher.Constraint("Equal", 51, 58))
sketch1.addConstraint(Sketcher.Constraint("Equal", 60, 62))
sketch1.addConstraint(Sketcher.Constraint("DistanceX", 1, 2, 1, 1, 25.0))
sketch1.addConstraint(Sketcher.Constraint("DistanceX", 3, 2, 3, 1, 20.0))
sketch1.addConstraint(Sketcher.Constraint("DistanceX", 5, 2, 5, 1, 43.0))
sketch1.addConstraint(Sketcher.Constraint("DistanceX", 9, 2, 9, 1, 10.0))
sketch1.addConstraint(Sketcher.Constraint("DistanceX", 11, 2, 11, 1, 6.0))
sketch1.addConstraint(Sketcher.Constraint("DistanceX", 19, 1, 19, 2, 143.0))
sketch1.addConstraint(Sketcher.Constraint("DistanceX", 53, 1, 53, 2, 68.0))
sketch1.addConstraint(Sketcher.Constraint("DistanceX", 59, 1, 59, 2, 3.0))
sketch1.addConstraint(Sketcher.Constraint("DistanceY", 0, 1, 0, 2, 115.0))
sketch1.addConstraint(Sketcher.Constraint("DistanceY", 10, 2, 10, 1, 97.0))
sketch1.addConstraint(Sketcher.Constraint("DistanceY", 12, 2, 12, 1, 50.0))
sketch1.addConstraint(Sketcher.Constraint("DistanceY", 52, 1, 52, 2, 125.0))
sketch1.addConstraint(Sketcher.Constraint("DistanceY", 54, 2, 54, 1, 204.0))
sketch1.addConstraint(Sketcher.Constraint("DistanceX", -1, 1, 44, 2, 228.0))
sketch1.addConstraint(Sketcher.Constraint("DistanceY", -1, 1, 44, 2, 112.0))
sketch1.addConstraint(Sketcher.Constraint("DistanceX", -1, 1, 48, 2, 138.0))
sketch1.addConstraint(Sketcher.Constraint("DistanceY", -1, 1, 52, 2, 224.0))
sketch1.addConstraint(Sketcher.Constraint("DistanceX", -1, 1, 58, 2, 285.0))
sketch1.addConstraint(Sketcher.Constraint("DistanceY", -1, 1, 58, 2, 169.0))
sketch1.addConstraint(Sketcher.Constraint("DistanceX", -1, 1, 72, 2, 98.0))
pad1 = doc.addObject("PartDesign::Pad", "Pad")
body.addObject(pad1)
pad1.Profile = sketch1
pad1.Length = 6
doc.recompute()

fillet = doc.addObject("PartDesign::Fillet", "Fillet")
body.addObject(fillet)
fillet.Base = (pad1, edges_at(pad1, [(366, 20, 3)]))
fillet.Radius = 15
doc.recompute()

fillet2 = doc.addObject("PartDesign::Fillet", "Fillet001")
body.addObject(fillet2)
fillet2.Base = (fillet, edges_at(fillet, [(203, 99, 3)]))
fillet2.Radius = 15
doc.recompute()

fillet3 = doc.addObject("PartDesign::Fillet", "Fillet002")
body.addObject(fillet3)
fillet3.Base = (fillet2, edges_at(fillet2, [(203, 20, 3)]))
fillet3.Radius = 15
doc.recompute()

fillet4 = doc.addObject("PartDesign::Fillet", "Fillet003")
body.addObject(fillet4)
fillet4.Base = (fillet3, edges_at(fillet3, [(298, 99, 3)]))
fillet4.Radius = 15
doc.recompute()

fillet5 = doc.addObject("PartDesign::Fillet", "Fillet004")
body.addObject(fillet5)
fillet5.Base = (fillet4, edges_at(fillet4, [(298, 224, 3)]))
fillet5.Radius = 15
doc.recompute()

fillet6 = doc.addObject("PartDesign::Fillet", "Fillet005")
body.addObject(fillet6)
fillet6.Base = (fillet5, edges_at(fillet5, [(366, 224, 3)]))
fillet6.Radius = 15
doc.recompute()

fillet7 = doc.addObject("PartDesign::Fillet", "Fillet006")
body.addObject(fillet7)
fillet7.Base = (fillet6, edges_at(fillet6, [(183, 99, 3)]))
fillet7.Radius = 15
doc.recompute()

fillet8 = doc.addObject("PartDesign::Fillet", "Fillet007")
body.addObject(fillet8)
fillet8.Base = (fillet7, edges_at(fillet7, [(20, 224, 3)]))
fillet8.Radius = 15
doc.recompute()

fillet9 = doc.addObject("PartDesign::Fillet", "Fillet008")
body.addObject(fillet9)
fillet9.Base = (fillet8, edges_at(fillet8, [(88, 99, 3)]))
fillet9.Radius = 15
doc.recompute()

fillet10 = doc.addObject("PartDesign::Fillet", "Fillet009")
body.addObject(fillet10)
fillet10.Base = (fillet9, edges_at(fillet9, [(88, 224, 3)]))
fillet10.Radius = 15
doc.recompute()

fillet11 = doc.addObject("PartDesign::Fillet", "Fillet010")
body.addObject(fillet11)
fillet11.Base = (fillet10, edges_at(fillet10, [(183, 20, 3)]))
fillet11.Radius = 15
doc.recompute()

fillet12 = doc.addObject("PartDesign::Fillet", "Fillet011")
body.addObject(fillet12)
fillet12.Base = (fillet11, edges_at(fillet11, [(20, 20, 3)]))
fillet12.Radius = 15
doc.recompute()

fillet13 = doc.addObject("PartDesign::Fillet", "Fillet012")
body.addObject(fillet13)
fillet13.Base = (fillet12, edges_at(fillet12, [(268, 129, 3)]))
fillet13.Radius = 15
doc.recompute()

fillet14 = doc.addObject("PartDesign::Fillet", "Fillet013")
body.addObject(fillet14)
fillet14.Base = (fillet13, edges_at(fillet13, [(118, 129, 3)]))
fillet14.Radius = 15

doc.recompute()
